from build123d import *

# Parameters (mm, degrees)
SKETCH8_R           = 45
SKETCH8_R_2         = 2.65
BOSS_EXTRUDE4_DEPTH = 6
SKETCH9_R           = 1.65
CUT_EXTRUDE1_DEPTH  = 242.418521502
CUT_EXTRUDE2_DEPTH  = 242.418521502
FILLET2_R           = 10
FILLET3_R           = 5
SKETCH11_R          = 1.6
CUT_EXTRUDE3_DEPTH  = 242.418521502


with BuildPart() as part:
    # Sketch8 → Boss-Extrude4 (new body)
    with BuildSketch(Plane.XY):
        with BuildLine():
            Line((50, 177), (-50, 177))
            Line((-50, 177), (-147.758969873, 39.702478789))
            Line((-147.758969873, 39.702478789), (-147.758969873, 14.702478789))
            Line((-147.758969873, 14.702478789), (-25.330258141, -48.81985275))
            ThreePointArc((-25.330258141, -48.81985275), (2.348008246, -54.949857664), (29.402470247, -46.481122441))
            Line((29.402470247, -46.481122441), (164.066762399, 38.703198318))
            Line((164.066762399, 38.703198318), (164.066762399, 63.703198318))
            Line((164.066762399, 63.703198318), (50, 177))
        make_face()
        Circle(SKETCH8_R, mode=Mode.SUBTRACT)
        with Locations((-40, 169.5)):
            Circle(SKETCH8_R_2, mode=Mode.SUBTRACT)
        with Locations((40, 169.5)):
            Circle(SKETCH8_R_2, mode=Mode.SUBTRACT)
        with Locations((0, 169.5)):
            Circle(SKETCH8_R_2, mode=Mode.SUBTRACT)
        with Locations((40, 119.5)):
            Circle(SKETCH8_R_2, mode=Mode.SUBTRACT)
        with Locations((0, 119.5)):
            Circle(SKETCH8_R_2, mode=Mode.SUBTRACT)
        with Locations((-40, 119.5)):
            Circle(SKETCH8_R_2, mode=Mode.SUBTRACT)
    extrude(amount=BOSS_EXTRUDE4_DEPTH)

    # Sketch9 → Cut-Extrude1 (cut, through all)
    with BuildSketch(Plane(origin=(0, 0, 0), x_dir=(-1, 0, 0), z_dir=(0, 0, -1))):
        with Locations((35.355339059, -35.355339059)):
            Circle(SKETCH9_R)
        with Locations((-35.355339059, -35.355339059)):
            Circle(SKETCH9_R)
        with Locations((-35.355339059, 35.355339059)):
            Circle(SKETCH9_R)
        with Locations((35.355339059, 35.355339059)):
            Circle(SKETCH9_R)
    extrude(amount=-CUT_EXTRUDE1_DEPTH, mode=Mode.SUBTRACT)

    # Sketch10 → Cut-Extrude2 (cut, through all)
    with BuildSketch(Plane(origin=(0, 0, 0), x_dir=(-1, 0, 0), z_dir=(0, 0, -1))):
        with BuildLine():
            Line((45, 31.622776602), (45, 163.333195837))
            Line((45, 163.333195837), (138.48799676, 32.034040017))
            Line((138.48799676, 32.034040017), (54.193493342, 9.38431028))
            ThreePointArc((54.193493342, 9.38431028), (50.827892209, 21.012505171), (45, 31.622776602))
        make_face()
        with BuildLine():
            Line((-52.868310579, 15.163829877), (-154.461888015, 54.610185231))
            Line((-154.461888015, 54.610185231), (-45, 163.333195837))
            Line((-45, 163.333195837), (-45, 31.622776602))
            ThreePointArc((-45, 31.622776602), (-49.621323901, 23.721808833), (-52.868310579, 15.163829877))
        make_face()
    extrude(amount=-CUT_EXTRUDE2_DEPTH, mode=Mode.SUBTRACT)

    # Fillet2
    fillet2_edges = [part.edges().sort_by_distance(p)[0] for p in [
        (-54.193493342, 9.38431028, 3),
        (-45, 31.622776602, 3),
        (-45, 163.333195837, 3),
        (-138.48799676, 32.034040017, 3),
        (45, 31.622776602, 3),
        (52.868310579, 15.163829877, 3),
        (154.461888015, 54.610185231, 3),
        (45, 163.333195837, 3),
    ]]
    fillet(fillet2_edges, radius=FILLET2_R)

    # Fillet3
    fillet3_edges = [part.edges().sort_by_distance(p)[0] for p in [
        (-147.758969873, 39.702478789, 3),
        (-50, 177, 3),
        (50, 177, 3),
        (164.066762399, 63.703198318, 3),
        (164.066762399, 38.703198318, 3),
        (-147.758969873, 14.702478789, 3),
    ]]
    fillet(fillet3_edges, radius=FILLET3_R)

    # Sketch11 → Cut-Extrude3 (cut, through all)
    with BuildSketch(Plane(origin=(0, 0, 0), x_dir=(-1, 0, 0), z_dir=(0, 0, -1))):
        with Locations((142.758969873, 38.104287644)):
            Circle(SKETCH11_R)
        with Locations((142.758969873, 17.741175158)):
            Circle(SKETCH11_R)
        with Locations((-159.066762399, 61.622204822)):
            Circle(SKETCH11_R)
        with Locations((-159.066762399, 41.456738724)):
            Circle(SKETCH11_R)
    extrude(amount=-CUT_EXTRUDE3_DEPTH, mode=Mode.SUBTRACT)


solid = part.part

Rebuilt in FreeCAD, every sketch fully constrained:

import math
import FreeCAD as App
import Part
import Sketcher
Q = App.Units.Quantity


def edges_at(feature, points):
    """Names of the edges that pass closest to the given points."""
    edges = feature.Shape.Edges
    near = lambda p: min(range(len(edges)), key=lambda i: edges[i].distToShape(Part.Vertex(*p))[0])
    return sorted({f"Edge{near(p) + 1}" for p in points})

doc = App.newDocument("Part")
body = doc.addObject("PartDesign::Body", "Body")

# Sketch on XY plane
sketch1 = doc.addObject("Sketcher::SketchObject", "Sketch")
body.addObject(sketch1)
sketch1.AttachmentSupport = (doc.XY_Plane, [""])
sketch1.MapMode = "FlatFace"
sketch1.addGeometry(Part.LineSegment(App.Vector(50, 177, 0), App.Vector(-50, 177, 0)), False)
sketch1.addGeometry(Part.LineSegment(App.Vector(-50, 177, 0), App.Vector(-147.8, 39.7, 0)), False)
sketch1.addGeometry(Part.LineSegment(App.Vector(-147.8, 39.7, 0), App.Vector(-147.8, 14.7, 0)), False)
sketch1.addGeometry(Part.LineSegment(App.Vector(-147.8, 14.7, 0), App.Vector(-25.3, -48.8, 0)), False)
sketch1.addGeometry(Part.ArcOfCircle(Part.Circle(App.Vector(0, 0, 0), App.Vector(0, 0, 1), 55), math.radians(-117), math.radians(-58)), False)
sketch1.addGeometry(Part.LineSegment(App.Vector(29.4, -46.5, 0), App.Vector(164.1, 38.7, 0)), False)
sketch1.addGeometry(Part.LineSegment(App.Vector(164.1, 38.7, 0), App.Vector(164.1, 63.7, 0)), False)
sketch1.addGeometry(Part.LineSegment(App.Vector(164.1, 63.7, 0), App.Vector(50, 177, 0)), False)
sketch1.addGeometry(Part.Circle(App.Vector(0, 0, 0), App.Vector(0, 0, 1), 45), False)
sketch1.addGeometry(Part.Circle(App.Vector(-40, 119.5, 0), App.Vector(0, 0, 1), 2.6), False)
sketch1.addGeometry(Part.Circle(App.Vector(-40, 169.5, 0), App.Vector(0, 0, 1), 2.6), False)
sketch1.addGeometry(Part.Circle(App.Vector(0, 119.5, 0), App.Vector(0, 0, 1), 2.6), False)
sketch1.addGeometry(Part.Circle(App.Vector(0, 169.5, 0), App.Vector(0, 0, 1), 2.6), False)
sketch1.addGeometry(Part.Circle(App.Vector(40, 119.5, 0), App.Vector(0, 0, 1), 2.6), False)
sketch1.addGeometry(Part.Circle(App.Vector(40, 169.5, 0), App.Vector(0, 0, 1), 2.6), False)
sketch1.addConstraint(Sketcher.Constraint("Coincident", 0, 2, 1, 1))
sketch1.addConstraint(Sketcher.Constraint("Coincident", 1, 2, 2, 1))
sketch1.addConstraint(Sketcher.Constraint("Coincident", 2, 2, 3, 1))
sketch1.addConstraint(Sketcher.Constraint("Tangent", 3, 2, 4, 1))
sketch1.addConstraint(Sketcher.Constraint("Tangent", 4, 2, 5, 1))
sketch1.addConstraint(Sketcher.Constraint("Coincident", 5, 2, 6, 1))
sketch1.addConstraint(Sketcher.Constraint("Coincident", 6, 2, 7, 1))
sketch1.addConstraint(Sketcher.Constraint("Coincident", 7, 2, 0, 1))
sketch1.addConstraint(Sketcher.Constraint("Horizontal", 0))
sketch1.addConstraint(Sketcher.Constraint("Vertical", 2))
sketch1.addConstraint(Sketcher.Constraint("Vertical", 6))
sketch1.addConstraint(Sketcher.Constraint("Coincident", 4, 3, -1, 1))
sketch1.addConstraint(Sketcher.Constraint("Coincident", 8, 3, -1, 1))
sketch1.addConstraint(Sketcher.Constraint("Equal", 9, 10))
sketch1.addConstraint(Sketcher.Constraint("Equal", 10, 11))
sketch1.addConstraint(Sketcher.Constraint("Equal", 11, 12))
sketch1.addConstraint(Sketcher.Constraint("Equal", 12, 13))
sketch1.addConstraint(Sketcher.Constraint("Equal", 13, 14))
sketch1.addConstraint(Sketcher.Constraint("Symmetric", 9, 3, 13, 3, -2))
sketch1.addConstraint(Sketcher.Constraint("Symmetric", 10, 3, 14, 3, -2))
sketch1.addConstraint(Sketcher.Constraint("PointOnObject", 11, 3, -2))
sketch1.addConstraint(Sketcher.Constraint("PointOnObject", 12, 3, -2))
sketch1.addConstraint(Sketcher.Constraint("Horizontal", 9, 3, 11, 3))
sketch1.addConstraint(Sketcher.Constraint("Horizontal", 10, 3, 12, 3))
sketch1.addConstraint(Sketcher.Constraint("Vertical", 9, 3, 10, 3))
sketch1.addConstraint(Sketcher.Constraint("Equal", 2, 6))
sketch1.addConstraint(Sketcher.Constraint("Diameter", 8, 90.0))
sketch1.addConstraint(Sketcher.Constraint("Radius", 4, 55.0))
sketch1.addConstraint(Sketcher.Constraint("Diameter", 9, 5.3))
sketch1.addConstraint(Sketcher.Constraint("DistanceX", 0, 2, 0, 1, 100.0))
sketch1.addConstraint(Sketcher.Constraint("DistanceY", 2, 2, 2, 1, 25.0))
sketch1.addConstraint(Sketcher.Constraint("DistanceX", 9, 3, -1, 1, 40.0))
sketch1.addConstraint(Sketcher.Constraint("DistanceX", 0, 2, -1, 1, 50.0))
sketch1.addConstraint(Sketcher.Constraint("DistanceY", -1, 1, 0, 2, 177.0))
sketch1.addConstraint(Sketcher.Constraint("DistanceY", 9, 3, 10, 3, 50.0))
sketch1.addConstraint(Sketcher.Constraint("DistanceY", -1, 1, 9, 3, 119.5))
sketch1.addConstraint(Sketcher.Constraint("DistanceY", -1, 1, 5, 2, 38.703198))
sketch1.addConstraint(Sketcher.Constraint("Distance", 7, 160.77124))
sketch1.addConstraint(Sketcher.Constraint("DistanceX", 1, 2, -1, 1, 147.75897))
sketch1.addConstraint(Sketcher.Constraint("DistanceY", -1, 1, 1, 2, 39.702479))
pad1 = doc.addObject("PartDesign::Pad", "Pad")
body.addObject(pad1)
pad1.Profile = sketch1
pad1.Length = 6

# Sketch on XY plane
sketch2 = doc.addObject("Sketcher::SketchObject", "Sketch001")
body.addObject(sketch2)
sketch2.AttachmentSupport = (doc.XY_Plane, [""])
sketch2.MapMode = "FlatFace"
sketch2.addGeometry(Part.Circle(App.Vector(-35.4, -35.4, 0), App.Vector(0, 0, 1), 1.6), False)
sketch2.addGeometry(Part.Circle(App.Vector(35.4, -35.4, 0), App.Vector(0, 0, 1), 1.6), False)
sketch2.addGeometry(Part.Circle(App.Vector(35.4, 35.4, 0), App.Vector(0, 0, 1), 1.6), False)
sketch2.addGeometry(Part.Circle(App.Vector(-35.4, 35.4, 0), App.Vector(0, 0, 1), 1.6), False)
sketch2.addConstraint(Sketcher.Constraint("Equal", 0, 1))
sketch2.addConstraint(Sketcher.Constraint("Equal", 1, 2))
sketch2.addConstraint(Sketcher.Constraint("Equal", 2, 3))
sketch2.addConstraint(Sketcher.Constraint("Symmetric", 0, 3, 2, 3, -1, 1))
sketch2.addConstraint(Sketcher.Constraint("Symmetric", 1, 3, 3, 3, -1, 1))
sketch2.addConstraint(Sketcher.Constraint("Symmetric", 0, 3, 1, 3, -2))
sketch2.addConstraint(Sketcher.Constraint("Diameter", 0, 3.3))
sketch2.addConstraint(Sketcher.Constraint("DistanceX", 0, 3, -1, 1, 35.355339))
sketch2.addConstraint(Sketcher.Constraint("DistanceY", 0, 3, -1, 1, 35.355339))
pocket1 = doc.addObject("PartDesign::Pocket", "Pocket")
body.addObject(pocket1)
pocket1.Profile = sketch2
pocket1.Type = "ThroughAll"
pocket1.Reversed = True

# Sketch on XY plane
sketch3 = doc.addObject("Sketcher::SketchObject", "Sketch002")
body.addObject(sketch3)
sketch3.AttachmentSupport = (doc.XY_Plane, [""])
sketch3.MapMode = "FlatFace"
sketch3.addGeometry(Part.LineSegment(App.Vector(-45, 163, 0), App.Vector(-45, 32, 0)), False)
sketch3.addGeometry(Part.ArcOfCircle(Part.Circle(App.Vector(0, 0, 0), App.Vector(0, 0, 1), 55), math.radians(145), math.radians(170)), False)
sketch3.addGeometry(Part.LineSegment(App.Vector(-54, 9, 0), App.Vector(-138, 32, 0)), False)
sketch3.addGeometry(Part.LineSegment(App.Vector(-138, 32, 0), App.Vector(-45, 163, 0)), False)
sketch3.addGeometry(Part.LineSegment(App.Vector(154, 55, 0), App.Vector(53, 15, 0)), False)
sketch3.addGeometry(Part.ArcOfCircle(Part.Circle(App.Vector(0, 0, 0), App.Vector(0, 0, 1), 55), math.radians(16), math.radians(35.1)), False)
sketch3.addGeometry(Part.LineSegment(App.Vector(45, 32, 0), App.Vector(45, 163, 0)), False)
sketch3.addGeometry(Part.LineSegment(App.Vector(45, 163, 0), App.Vector(154, 55, 0)), False)
sketch3.addConstraint(Sketcher.Constraint("Coincident", 0, 2, 1, 1))
sketch3.addConstraint(Sketcher.Constraint("Coincident", 1, 2, 2, 1))
sketch3.addConstraint(Sketcher.Constraint("Coincident", 2, 2, 3, 1))
sketch3.addConstraint(Sketcher.Constraint("Coincident", 3, 2, 0, 1))
sketch3.addConstraint(Sketcher.Constraint("Coincident", 4, 2, 5, 1))
sketch3.addConstraint(Sketcher.Constraint("Coincident", 5, 2, 6, 1))
sketch3.addConstraint(Sketcher.Constraint("Coincident", 6, 2, 7, 1))
sketch3.addConstraint(Sketcher.Constraint("Coincident", 7, 2, 4, 1))
sketch3.addConstraint(Sketcher.Constraint("Vertical", 0))
sketch3.addConstraint(Sketcher.Constraint("Vertical", 6))
sketch3.addConstraint(Sketcher.Constraint("Coincident", 1, 3, -1, 1))
sketch3.addConstraint(Sketcher.Constraint("Coincident", 5, 3, -1, 1))
sketch3.addConstraint(Sketcher.Constraint("Equal", 1, 5))
sketch3.addConstraint(Sketcher.Constraint("Symmetric", 3, 2, 6, 2, -2))
sketch3.addConstraint(Sketcher.Constraint("Radius", 1, 55.0))
sketch3.addConstraint(Sketcher.Constraint("DistanceX", 0, 2, -1, 1, 45.0))
sketch3.addConstraint(Sketcher.Constraint("Angle", 2, Q("164.96 deg")))
sketch3.addConstraint(Sketcher.Constraint("Angle", 4, Q("-158.78 deg")))
sketch3.addConstraint(Sketcher.Constraint("DistanceY", 0, 2, 0, 1, 131.710419))
sketch3.addConstraint(Sketcher.Constraint("Distance", 2, 87.284441))
sketch3.addConstraint(Sketcher.Constraint("Distance", 4, 108.982888))
sketch3.addConstraint(Sketcher.Constraint("DistanceY", -1, 1, 1, 2, 9.38431))
sketch3.addConstraint(Sketcher.Constraint("DistanceX", -1, 1, 4, 2, 52.868311))
pocket2 = doc.addObject("PartDesign::Pocket", "Pocket001")
body.addObject(pocket2)
pocket2.Profile = sketch3
pocket2.Type = "ThroughAll"
pocket2.Reversed = True
doc.recompute()

fillet = doc.addObject("PartDesign::Fillet", "Fillet")
body.addObject(fillet)
fillet.Base = (pocket2, edges_at(pocket2, [
    (-54.193, 9.384, 3),
    (-45, 31.623, 3),
    (-45, 163.333, 3),
    (-138.488, 32.034, 3),
    (45, 31.623, 3),
    (52.868, 15.164, 3),
    (154.462, 54.61, 3),
    (45, 163.333, 3),
]))
fillet.Radius = 10
doc.recompute()

fillet2 = doc.addObject("PartDesign::Fillet", "Fillet001")
body.addObject(fillet2)
fillet2.Base = (fillet, edges_at(fillet, [
    (-147.759, 39.702, 3),
    (-50, 177, 3),
    (50, 177, 3),
    (164.067, 63.703, 3),
    (164.067, 38.703, 3),
    (-147.759, 14.702, 3),
]))
fillet2.Radius = 5

# Sketch on XY plane
sketch4 = doc.addObject("Sketcher::SketchObject", "Sketch003")
body.addObject(sketch4)
sketch4.AttachmentSupport = (doc.XY_Plane, [""])
sketch4.MapMode = "FlatFace"
sketch4.addGeometry(Part.Circle(App.Vector(-142.8, 38.1, 0), App.Vector(0, 0, 1), 1.6), False)
sketch4.addGeometry(Part.Circle(App.Vector(-142.8, 17.7, 0), App.Vector(0, 0, 1), 1.6), False)
sketch4.addGeometry(Part.Circle(App.Vector(159.1, 61.6, 0), App.Vector(0, 0, 1), 1.6), False)
sketch4.addGeometry(Part.Circle(App.Vector(159.1, 41.5, 0), App.Vector(0, 0, 1), 1.6), False)
sketch4.addConstraint(Sketcher.Constraint("Equal", 0, 1))
sketch4.addConstraint(Sketcher.Constraint("Equal", 1, 2))
sketch4.addConstraint(Sketcher.Constraint("Equal", 2, 3))
sketch4.addConstraint(Sketcher.Constraint("Vertical", 0, 3, 1, 3))
sketch4.addConstraint(Sketcher.Constraint("Vertical", 2, 3, 3, 3))
sketch4.addConstraint(Sketcher.Constraint("Diameter", 0, 3.2))
sketch4.addConstraint(Sketcher.Constraint("DistanceX", 0, 3, -1, 1, 142.75897))
sketch4.addConstraint(Sketcher.Constraint("DistanceY", -1, 1, 3, 3, 41.456739))
sketch4.addConstraint(Sketcher.Constraint("DistanceY", 1, 3, 2, 3, 43.88103))
sketch4.addConstraint(Sketcher.Constraint("DistanceY", 0, 3, 3, 3, 3.352451))
sketch4.addConstraint(Sketcher.Constraint("DistanceY", -1, 1, 1, 3, 17.741175))
sketch4.addConstraint(Sketcher.Constraint("DistanceX", -1, 1, 2, 3, 159.066762))
pocket3 = doc.addObject("PartDesign::Pocket", "Pocket002")
body.addObject(pocket3)
pocket3.Profile = sketch4
pocket3.Type = "ThroughAll"
pocket3.Reversed = True

doc.recompute()
